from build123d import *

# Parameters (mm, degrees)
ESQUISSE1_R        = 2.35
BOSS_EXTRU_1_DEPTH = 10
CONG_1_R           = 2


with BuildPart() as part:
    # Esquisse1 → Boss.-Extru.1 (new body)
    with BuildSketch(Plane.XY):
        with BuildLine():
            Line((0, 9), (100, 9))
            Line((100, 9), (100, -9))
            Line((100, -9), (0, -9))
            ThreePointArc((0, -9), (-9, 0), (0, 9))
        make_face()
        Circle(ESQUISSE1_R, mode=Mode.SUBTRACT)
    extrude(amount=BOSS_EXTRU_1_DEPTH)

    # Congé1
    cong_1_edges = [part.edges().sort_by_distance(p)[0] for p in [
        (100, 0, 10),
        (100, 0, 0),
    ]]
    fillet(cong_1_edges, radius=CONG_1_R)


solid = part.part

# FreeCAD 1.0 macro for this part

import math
import FreeCAD as App
import Part
import Sketcher
from FreeCAD import Vector
Q = App.Units.Quantity


def edges_at(feature, points):
    """Names of the edges that pass closest to the given points."""
    edges = feature.Shape.Edges
    near = lambda p: min(range(len(edges)), key=lambda i: edges[i].distToShape(Part.Vertex(*p))[0])
    return sorted({f"Edge{near(p) + 1}" for p in points})

doc = App.newDocument("Part")
body = doc.addObject("PartDesign::Body", "Body")

# Sketch on XY plane
sketch1 = doc.addObject("Sketcher::SketchObject", "Sketch")
body.addObject(sketch1)
sketch1.AttachmentSupport = (doc.XY_Plane, [""])
sketch1.MapMode = "FlatFace"
sketch1.addGeometry([
    Part.LineSegment(Vector(100, 9, 0), Vector(0, 9, 0)),  # 0
    Part.ArcOfCircle(Part.Circle(Vector(0, 0, 0), Vector(0, 0, 1), 9), math.radians(90), math.radians(270)),  # 1
    Part.LineSegment(Vector(0, -9, 0), Vector(100, -9, 0)),  # 2
    Part.LineSegment(Vector(100, -9, 0), Vector(100, 9, 0)),  # 3
    Part.Circle(Vector(0, 0, 0), Vector(0, 0, 1), 2.35),  # 4
], False)
sketch1.addConstraint([
    Sketcher.Constraint("Tangent", 0, 2, 1, 1),
    Sketcher.Constraint("Tangent", 1, 2, 2, 1),
    Sketcher.Constraint("Coincident", 2, 2, 3, 1),
    Sketcher.Constraint("Coincident", 3, 2, 0, 1),
    Sketcher.Constraint("Horizontal", 0),
    Sketcher.Constraint("Horizontal", 2),
    Sketcher.Constraint("Vertical", 3),
    Sketcher.Constraint("Coincident", 1, 3, -1, 1),
    Sketcher.Constraint("Coincident", 4, 3, -1, 1),
    Sketcher.Constraint("Radius", 1, Q("9 mm")),
    Sketcher.Constraint("Diameter", 4, Q("4.7 mm")),
    Sketcher.Constraint("DistanceX", 0, 2, 0, 1, Q("100 mm")),
])
pad1 = doc.addObject("PartDesign::Pad", "Pad")
body.addObject(pad1)
pad1.Profile = sketch1
pad1.Length = 10
doc.recompute()

fillet = doc.addObject("PartDesign::Fillet", "Fillet")
body.addObject(fillet)
fillet.Base = (pad1, edges_at(pad1, [(100, 0, 10), (100, 0, 0)]))
fillet.Radius = 2

doc.recompute()
